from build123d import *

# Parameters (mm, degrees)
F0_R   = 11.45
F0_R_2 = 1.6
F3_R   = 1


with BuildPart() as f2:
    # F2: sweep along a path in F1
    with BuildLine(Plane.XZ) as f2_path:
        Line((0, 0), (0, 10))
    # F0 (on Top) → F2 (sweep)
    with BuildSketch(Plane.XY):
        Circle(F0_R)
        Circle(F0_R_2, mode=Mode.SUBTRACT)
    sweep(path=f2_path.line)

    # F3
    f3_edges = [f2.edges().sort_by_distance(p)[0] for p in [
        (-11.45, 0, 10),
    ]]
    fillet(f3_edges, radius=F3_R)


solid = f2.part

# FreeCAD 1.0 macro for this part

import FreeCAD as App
import Part
import Sketcher


def edges_at(feature, points):
    """Names of the edges that pass closest to the given points."""
    edges = feature.Shape.Edges
    near = lambda p: min(range(len(edges)), key=lambda i: edges[i].distToShape(Part.Vertex(*p))[0])
    return sorted({f"Edge{near(p) + 1}" for p in points})

doc = App.newDocument("Part")
body = doc.addObject("PartDesign::Body", "Body")

sketch1 = body.newObject("Sketcher::SketchObject", "Sketch")
sketch1.AttachmentSupport = (doc.getObject("XY_Plane"), [""])
sketch1.MapMode = "FlatFace"
sketch1.addGeometry([
    Part.Circle(App.Vector(0, 0, 0), App.Vector(0, 0, 1), 11.4),
    Part.Circle(App.Vector(0, 0, 0), App.Vector(0, 0, 1), 1.6),
], False)
sketch1.addConstraint([
    Sketcher.Constraint("Coincident", 0, 3, -1, 1),
    Sketcher.Constraint("Coincident", 1, 3, -1, 1),
    Sketcher.Constraint("Diameter", 0, 22.9),
    Sketcher.Constraint("Diameter", 1, 3.2),
])

sketch2 = body.newObject("Sketcher::SketchObject", "Sketch001")
sketch2.AttachmentSupport = (doc.getObject("XZ_Plane"), [""])
sketch2.MapMode = "FlatFace"
sketch2.addGeometry(Part.LineSegment(App.Vector(0, 0, 0), App.Vector(0, 10, 0)), False)
sketch2.addConstraint([
    Sketcher.Constraint("Vertical", 0),
    Sketcher.Constraint("Coincident", 0, 1, -1, 1),
    Sketcher.Constraint("DistanceY", 0, 1, 0, 2, 10.0),
])
doc.recompute()

additivepipe = body.newObject("PartDesign::AdditivePipe", "AdditivePipe")
additivepipe.Profile = sketch1
additivepipe.Spine = (sketch2, ["Edge1"])
doc.recompute()

fillet = body.newObject("PartDesign::Fillet", "Fillet")
fillet.Base = (additivepipe, edges_at(additivepipe, [(-11.45, 0, 10)]))
fillet.Radius = 1

doc.recompute()
